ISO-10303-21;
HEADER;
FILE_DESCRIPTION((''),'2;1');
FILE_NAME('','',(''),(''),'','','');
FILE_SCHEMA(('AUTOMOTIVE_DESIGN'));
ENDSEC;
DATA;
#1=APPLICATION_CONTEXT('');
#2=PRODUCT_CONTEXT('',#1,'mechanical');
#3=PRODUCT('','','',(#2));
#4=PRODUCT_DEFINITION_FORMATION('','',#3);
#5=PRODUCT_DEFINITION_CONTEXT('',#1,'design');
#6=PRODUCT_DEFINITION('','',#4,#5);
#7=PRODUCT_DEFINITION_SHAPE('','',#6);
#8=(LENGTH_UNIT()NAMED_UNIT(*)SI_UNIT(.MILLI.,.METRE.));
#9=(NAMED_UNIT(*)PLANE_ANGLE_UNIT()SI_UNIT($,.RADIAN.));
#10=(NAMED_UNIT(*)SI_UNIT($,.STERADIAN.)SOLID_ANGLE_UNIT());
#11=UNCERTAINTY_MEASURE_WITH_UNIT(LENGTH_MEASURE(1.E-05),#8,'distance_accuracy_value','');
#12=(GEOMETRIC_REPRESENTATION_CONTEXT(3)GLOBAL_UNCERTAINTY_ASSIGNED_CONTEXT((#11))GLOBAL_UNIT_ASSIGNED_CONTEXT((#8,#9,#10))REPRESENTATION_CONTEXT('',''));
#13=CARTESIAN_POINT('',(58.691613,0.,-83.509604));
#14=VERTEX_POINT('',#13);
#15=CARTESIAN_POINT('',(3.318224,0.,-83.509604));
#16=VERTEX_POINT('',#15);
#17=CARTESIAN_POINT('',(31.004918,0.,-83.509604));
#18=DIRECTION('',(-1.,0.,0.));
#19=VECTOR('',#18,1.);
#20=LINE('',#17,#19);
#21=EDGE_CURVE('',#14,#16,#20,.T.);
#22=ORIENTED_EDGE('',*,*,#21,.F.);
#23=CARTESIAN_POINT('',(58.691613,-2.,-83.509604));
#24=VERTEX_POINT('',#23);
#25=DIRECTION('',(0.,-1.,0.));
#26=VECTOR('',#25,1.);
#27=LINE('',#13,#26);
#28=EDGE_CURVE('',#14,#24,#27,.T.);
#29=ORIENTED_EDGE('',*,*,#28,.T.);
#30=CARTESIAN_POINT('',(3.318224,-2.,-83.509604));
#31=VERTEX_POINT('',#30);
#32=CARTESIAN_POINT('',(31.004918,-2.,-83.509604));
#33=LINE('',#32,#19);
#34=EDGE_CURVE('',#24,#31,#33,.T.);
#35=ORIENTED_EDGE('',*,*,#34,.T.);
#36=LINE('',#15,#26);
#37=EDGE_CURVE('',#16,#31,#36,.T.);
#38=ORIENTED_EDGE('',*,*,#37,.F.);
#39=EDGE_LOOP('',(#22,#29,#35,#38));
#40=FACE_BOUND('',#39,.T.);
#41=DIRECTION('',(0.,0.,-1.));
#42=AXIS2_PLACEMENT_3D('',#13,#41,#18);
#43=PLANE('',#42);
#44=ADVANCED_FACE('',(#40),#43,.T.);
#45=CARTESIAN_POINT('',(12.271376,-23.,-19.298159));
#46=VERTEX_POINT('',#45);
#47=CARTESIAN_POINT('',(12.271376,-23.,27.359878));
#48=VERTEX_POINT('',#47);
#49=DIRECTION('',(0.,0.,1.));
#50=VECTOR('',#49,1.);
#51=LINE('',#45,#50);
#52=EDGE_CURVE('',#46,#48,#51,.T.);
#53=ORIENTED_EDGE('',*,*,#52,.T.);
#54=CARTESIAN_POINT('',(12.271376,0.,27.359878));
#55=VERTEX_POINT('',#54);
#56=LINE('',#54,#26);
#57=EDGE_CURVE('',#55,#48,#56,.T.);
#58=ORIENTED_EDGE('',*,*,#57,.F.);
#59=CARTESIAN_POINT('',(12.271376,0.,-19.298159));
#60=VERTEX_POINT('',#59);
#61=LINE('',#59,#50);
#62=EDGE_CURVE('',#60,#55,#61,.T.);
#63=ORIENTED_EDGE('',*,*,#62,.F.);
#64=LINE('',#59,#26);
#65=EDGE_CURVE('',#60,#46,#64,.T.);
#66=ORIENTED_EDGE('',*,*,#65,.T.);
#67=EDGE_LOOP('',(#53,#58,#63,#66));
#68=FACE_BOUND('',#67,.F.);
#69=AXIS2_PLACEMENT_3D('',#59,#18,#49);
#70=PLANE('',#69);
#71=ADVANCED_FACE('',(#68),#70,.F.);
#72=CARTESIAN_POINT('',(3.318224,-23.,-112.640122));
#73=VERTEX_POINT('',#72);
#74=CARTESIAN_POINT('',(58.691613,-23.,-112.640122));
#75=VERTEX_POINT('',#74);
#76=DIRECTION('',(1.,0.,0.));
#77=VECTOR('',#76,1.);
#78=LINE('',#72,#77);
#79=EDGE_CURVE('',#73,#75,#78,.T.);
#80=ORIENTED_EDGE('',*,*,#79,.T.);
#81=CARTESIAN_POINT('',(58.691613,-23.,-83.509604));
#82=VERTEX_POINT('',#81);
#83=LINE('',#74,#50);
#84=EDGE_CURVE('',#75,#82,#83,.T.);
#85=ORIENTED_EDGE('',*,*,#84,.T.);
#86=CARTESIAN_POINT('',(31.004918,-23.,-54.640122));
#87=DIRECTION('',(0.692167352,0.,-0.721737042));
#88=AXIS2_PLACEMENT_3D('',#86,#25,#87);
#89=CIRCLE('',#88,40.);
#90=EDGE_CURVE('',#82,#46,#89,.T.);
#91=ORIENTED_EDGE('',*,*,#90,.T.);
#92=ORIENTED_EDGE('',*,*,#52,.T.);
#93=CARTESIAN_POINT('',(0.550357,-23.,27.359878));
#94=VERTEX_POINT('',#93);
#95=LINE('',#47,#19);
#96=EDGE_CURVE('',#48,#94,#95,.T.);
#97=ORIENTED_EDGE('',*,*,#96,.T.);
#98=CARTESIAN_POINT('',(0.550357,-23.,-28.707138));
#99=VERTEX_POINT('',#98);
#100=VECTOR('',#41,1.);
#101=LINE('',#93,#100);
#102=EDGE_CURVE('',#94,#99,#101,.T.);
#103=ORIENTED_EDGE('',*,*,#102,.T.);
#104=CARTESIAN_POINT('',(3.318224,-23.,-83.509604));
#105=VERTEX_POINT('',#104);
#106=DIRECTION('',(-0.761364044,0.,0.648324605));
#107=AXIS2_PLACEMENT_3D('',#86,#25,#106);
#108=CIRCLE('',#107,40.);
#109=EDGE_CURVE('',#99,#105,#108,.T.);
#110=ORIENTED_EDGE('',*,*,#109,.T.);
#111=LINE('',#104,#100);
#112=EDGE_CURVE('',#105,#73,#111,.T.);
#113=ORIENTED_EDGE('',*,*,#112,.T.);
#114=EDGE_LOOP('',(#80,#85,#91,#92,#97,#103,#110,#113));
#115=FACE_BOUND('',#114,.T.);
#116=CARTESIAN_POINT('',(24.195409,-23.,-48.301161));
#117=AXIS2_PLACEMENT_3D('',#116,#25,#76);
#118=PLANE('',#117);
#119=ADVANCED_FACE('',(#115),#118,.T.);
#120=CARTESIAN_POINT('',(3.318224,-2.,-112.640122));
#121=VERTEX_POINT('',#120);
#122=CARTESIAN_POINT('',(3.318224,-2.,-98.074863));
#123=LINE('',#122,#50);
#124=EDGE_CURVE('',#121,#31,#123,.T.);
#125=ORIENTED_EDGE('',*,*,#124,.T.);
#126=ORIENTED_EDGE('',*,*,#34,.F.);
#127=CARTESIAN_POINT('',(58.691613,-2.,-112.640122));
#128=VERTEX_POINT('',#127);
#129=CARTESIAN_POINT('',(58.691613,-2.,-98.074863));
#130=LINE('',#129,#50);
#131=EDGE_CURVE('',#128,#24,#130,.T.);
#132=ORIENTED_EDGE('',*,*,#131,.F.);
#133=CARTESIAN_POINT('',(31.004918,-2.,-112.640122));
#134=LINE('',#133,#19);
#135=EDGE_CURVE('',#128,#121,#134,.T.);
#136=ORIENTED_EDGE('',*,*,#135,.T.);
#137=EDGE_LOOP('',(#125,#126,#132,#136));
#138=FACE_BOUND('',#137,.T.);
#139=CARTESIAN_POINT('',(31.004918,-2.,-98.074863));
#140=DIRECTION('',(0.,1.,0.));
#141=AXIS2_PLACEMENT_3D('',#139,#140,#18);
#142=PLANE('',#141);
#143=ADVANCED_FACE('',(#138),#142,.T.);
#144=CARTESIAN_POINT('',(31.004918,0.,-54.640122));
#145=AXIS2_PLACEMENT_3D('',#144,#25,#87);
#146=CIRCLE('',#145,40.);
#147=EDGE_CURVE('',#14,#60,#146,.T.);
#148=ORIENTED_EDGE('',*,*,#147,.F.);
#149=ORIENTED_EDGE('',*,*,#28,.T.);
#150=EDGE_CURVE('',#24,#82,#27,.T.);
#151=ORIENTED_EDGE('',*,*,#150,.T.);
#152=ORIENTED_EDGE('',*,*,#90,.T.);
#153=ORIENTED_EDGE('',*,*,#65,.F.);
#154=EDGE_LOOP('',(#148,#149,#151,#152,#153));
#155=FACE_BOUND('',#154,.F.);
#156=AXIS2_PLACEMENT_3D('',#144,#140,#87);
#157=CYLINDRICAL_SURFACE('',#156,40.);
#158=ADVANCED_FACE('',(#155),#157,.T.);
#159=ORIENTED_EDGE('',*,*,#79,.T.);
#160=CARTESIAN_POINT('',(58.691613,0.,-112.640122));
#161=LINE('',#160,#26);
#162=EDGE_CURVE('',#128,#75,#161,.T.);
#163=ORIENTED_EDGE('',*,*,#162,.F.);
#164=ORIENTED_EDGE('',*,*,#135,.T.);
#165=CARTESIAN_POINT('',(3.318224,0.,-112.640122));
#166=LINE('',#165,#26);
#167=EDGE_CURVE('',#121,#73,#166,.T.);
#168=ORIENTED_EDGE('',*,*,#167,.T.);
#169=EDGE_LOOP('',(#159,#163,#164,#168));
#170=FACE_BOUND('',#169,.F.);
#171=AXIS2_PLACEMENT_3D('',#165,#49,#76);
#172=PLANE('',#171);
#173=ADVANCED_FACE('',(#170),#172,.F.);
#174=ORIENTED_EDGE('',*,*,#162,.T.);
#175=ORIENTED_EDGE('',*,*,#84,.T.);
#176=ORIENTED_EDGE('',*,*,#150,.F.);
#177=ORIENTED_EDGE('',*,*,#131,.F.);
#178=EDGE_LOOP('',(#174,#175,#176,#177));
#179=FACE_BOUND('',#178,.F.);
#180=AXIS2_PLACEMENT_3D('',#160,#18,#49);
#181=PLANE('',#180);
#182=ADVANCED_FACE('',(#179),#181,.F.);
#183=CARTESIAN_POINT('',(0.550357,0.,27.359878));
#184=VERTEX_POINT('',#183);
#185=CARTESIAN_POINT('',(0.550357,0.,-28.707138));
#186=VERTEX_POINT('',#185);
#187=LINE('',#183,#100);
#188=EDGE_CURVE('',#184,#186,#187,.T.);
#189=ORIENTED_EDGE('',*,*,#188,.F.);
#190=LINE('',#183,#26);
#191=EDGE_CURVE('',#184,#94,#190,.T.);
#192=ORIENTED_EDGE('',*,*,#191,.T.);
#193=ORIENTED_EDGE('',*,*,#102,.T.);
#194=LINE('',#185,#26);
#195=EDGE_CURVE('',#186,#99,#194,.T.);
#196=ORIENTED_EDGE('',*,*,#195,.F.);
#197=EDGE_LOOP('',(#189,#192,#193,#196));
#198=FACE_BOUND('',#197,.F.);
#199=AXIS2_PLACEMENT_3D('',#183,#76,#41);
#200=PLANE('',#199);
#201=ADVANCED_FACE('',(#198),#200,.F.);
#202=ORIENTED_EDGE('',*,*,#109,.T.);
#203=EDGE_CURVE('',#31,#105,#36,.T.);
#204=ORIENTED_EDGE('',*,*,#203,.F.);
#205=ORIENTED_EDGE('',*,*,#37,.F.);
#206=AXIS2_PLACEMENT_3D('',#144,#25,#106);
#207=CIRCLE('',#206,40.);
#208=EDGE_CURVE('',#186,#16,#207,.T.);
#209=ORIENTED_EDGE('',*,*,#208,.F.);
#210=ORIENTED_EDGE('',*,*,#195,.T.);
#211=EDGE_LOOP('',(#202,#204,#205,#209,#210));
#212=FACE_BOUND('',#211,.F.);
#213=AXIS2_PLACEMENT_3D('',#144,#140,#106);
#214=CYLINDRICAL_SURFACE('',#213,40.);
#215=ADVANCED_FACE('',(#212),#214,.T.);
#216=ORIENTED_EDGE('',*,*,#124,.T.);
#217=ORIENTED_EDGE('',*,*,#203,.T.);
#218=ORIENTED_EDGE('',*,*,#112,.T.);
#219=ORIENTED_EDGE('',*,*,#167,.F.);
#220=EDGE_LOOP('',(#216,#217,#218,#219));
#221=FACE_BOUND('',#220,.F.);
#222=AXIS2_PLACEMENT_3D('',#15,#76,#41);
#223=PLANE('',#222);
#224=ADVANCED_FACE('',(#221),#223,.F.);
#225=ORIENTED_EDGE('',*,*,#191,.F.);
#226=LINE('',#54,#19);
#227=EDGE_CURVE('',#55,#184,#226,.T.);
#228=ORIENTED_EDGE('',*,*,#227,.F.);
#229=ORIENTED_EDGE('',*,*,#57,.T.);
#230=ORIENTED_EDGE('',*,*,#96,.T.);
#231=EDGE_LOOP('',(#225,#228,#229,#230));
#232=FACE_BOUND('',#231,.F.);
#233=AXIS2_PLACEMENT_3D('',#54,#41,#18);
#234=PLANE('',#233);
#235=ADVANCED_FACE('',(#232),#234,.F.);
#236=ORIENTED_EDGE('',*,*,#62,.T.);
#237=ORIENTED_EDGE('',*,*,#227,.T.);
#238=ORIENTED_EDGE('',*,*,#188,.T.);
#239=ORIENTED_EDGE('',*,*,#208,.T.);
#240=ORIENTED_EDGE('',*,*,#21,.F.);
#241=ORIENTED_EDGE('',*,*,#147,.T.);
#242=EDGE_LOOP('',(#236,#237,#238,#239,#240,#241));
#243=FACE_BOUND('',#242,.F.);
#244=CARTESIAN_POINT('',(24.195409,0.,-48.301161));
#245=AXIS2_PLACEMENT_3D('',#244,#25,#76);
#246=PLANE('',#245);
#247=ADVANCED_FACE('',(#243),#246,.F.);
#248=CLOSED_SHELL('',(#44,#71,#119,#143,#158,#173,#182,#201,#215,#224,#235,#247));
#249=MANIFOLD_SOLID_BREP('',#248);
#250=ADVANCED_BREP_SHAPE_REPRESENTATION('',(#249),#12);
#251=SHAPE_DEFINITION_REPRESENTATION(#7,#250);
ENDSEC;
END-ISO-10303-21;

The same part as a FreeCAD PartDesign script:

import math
import FreeCAD as App
import Part
import Sketcher
from FreeCAD import Vector
Q = App.Units.Quantity


def add_polygon(sketch, points):
    """Adds a closed chain of lines whose ends are joined by coincident constraints."""
    first, n = sketch.GeometryCount, len(points)
    for a, b in zip(points, points[1:] + points[:1]):
        sketch.addGeometry(Part.LineSegment(App.Vector(*a, 0), App.Vector(*b, 0)), False)
    for i in range(n):
        sketch.addConstraint(Sketcher.Constraint("Coincident", first + i, 2, first + (i + 1) % n, 1))

doc = App.newDocument("Part")
body = doc.addObject("PartDesign::Body", "Body")

sketch1 = doc.addObject("Sketcher::SketchObject", "Sketch")
body.addObject(sketch1)
sketch1.AttachmentSupport = (doc.XZ_Plane, [""])
sketch1.MapMode = "FlatFace"
sketch1.addGeometry([
    Part.LineSegment(Vector(58.691613, -112.640122, 0), Vector(58.691613, -83.509604, 0)),
    Part.ArcOfCircle(Part.Circle(Vector(31.004918, -54.640122, 0), Vector(0, 0, 1), 40), math.radians(-46.198081), math.radians(117.926503)),
    Part.LineSegment(Vector(12.271376, -19.298159, 0), Vector(12.271376, 27.359878, 0)),
    Part.LineSegment(Vector(12.271376, 27.359878, 0), Vector(0.550357, 27.359878, 0)),
    Part.LineSegment(Vector(0.550357, 27.359878, 0), Vector(0.550357, -28.707138, 0)),
    Part.ArcOfCircle(Part.Circle(Vector(31.004918, -54.640122, 0), Vector(0, 0, 1), 40), math.radians(139.584597), math.radians(226.198081)),
    Part.LineSegment(Vector(3.318224, -83.509604, 0), Vector(3.318224, -112.640122, 0)),
    Part.LineSegment(Vector(3.318224, -112.640122, 0), Vector(58.691613, -112.640122, 0)),
], False)
sketch1.addConstraint([
    Sketcher.Constraint("Coincident", 0, 2, 1, 1),
    Sketcher.Constraint("Coincident", 1, 2, 2, 1),
    Sketcher.Constraint("Coincident", 2, 2, 3, 1),
    Sketcher.Constraint("Coincident", 3, 2, 4, 1),
    Sketcher.Constraint("Coincident", 4, 2, 5, 1),
    Sketcher.Constraint("Coincident", 5, 2, 6, 1),
    Sketcher.Constraint("Coincident", 6, 2, 7, 1),
    Sketcher.Constraint("Coincident", 7, 2, 0, 1),
    Sketcher.Constraint("Vertical", 0),
    Sketcher.Constraint("Vertical", 2),
    Sketcher.Constraint("Horizontal", 3),
    Sketcher.Constraint("Vertical", 4),
    Sketcher.Constraint("Vertical", 6),
    Sketcher.Constraint("Horizontal", 7),
    Sketcher.Constraint("Coincident", 5, 3, 1, 3),
    Sketcher.Constraint("Equal", 1, 5),
    Sketcher.Constraint("Horizontal", 0, 2, 5, 2),
    Sketcher.Constraint("Radius", 1, Q("40 mm")),
    Sketcher.Constraint("DistanceY", 1, 3, 2, 2, Q("82 mm")),
    Sketcher.Constraint("DistanceY", 6, 2, 1, 3, Q("58 mm")),
    Sketcher.Constraint("DistanceX", 3, 2, 3, 1, Q("11.721019 mm")),
    Sketcher.Constraint("DistanceX", 7, 1, 7, 2, Q("55.373388 mm")),
    Sketcher.Constraint("DistanceY", 2, 1, 2, 2, Q("46.658036 mm")),
    Sketcher.Constraint("DistanceX", -1, 1, 1, 3, Q("31.004918 mm")),
    Sketcher.Constraint("DistanceY", 1, 2, -1, 1, Q("19.298159 mm")),
])
pad1 = doc.addObject("PartDesign::Pad", "Pad")
body.addObject(pad1)
pad1.Profile = sketch1
pad1.Length = 23

sketch2 = doc.addObject("Sketcher::SketchObject", "Sketch001")
body.addObject(sketch2)
sketch2.AttachmentSupport = (doc.XZ_Plane, [""])
sketch2.MapMode = "FlatFace"
add_polygon(sketch2, [(58.691613, -83.509604), (58.691613, -112.640122), (3.318224, -112.640122), (3.318224, -83.509604)])
sketch2.addConstraint([
    Sketcher.Constraint("Vertical", 0),
    Sketcher.Constraint("Horizontal", 1),
    Sketcher.Constraint("Vertical", 2),
    Sketcher.Constraint("Horizontal", 3),
    Sketcher.Constraint("DistanceX", 1, 2, 1, 1, Q("55.373388 mm")),
    Sketcher.Constraint("DistanceY", 0, 2, 0, 1, Q("29.130518 mm")),
    Sketcher.Constraint("DistanceX", -1, 1, 0, 2, Q("58.691613 mm")),
    Sketcher.Constraint("DistanceY", 0, 2, -1, 1, Q("112.640122 mm")),
])
pocket1 = doc.addObject("PartDesign::Pocket", "Pocket")
body.addObject(pocket1)
pocket1.Profile = sketch2
pocket1.Length = 2
pocket1.Reversed = True

doc.recompute()
